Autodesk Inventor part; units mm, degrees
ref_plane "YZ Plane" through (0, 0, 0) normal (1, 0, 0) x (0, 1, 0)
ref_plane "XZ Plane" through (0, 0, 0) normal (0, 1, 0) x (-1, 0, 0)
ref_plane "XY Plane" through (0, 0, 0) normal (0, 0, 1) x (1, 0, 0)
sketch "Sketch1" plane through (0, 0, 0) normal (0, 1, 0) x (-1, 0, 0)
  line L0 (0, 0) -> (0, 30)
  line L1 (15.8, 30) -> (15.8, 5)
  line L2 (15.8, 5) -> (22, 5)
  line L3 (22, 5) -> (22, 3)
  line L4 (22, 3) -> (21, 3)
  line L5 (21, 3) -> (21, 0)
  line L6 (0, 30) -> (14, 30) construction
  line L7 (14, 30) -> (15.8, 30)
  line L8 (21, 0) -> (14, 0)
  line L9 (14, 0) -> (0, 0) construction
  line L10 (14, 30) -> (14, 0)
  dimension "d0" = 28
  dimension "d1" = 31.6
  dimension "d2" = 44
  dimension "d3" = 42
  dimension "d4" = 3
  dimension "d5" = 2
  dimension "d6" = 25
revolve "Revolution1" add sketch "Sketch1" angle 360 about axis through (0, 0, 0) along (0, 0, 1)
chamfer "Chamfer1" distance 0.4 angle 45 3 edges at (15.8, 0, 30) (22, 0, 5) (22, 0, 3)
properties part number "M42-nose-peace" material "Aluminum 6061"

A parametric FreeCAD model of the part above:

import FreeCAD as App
import Part
import Sketcher

V = App.Vector


def edges_at(feature, points):
    """Names of the edges that pass closest to the given points."""
    edges = feature.Shape.Edges
    near = lambda p: min(range(len(edges)), key=lambda i: edges[i].distToShape(Part.Vertex(*p))[0])
    return sorted({f"Edge{near(p) + 1}" for p in points})


def add_polygon(sketch, points):
    """Adds a closed chain of lines whose ends are joined by coincident constraints."""
    first, n = sketch.GeometryCount, len(points)
    for a, b in zip(points, points[1:] + points[:1]):
        sketch.addGeometry(Part.LineSegment(App.Vector(*a, 0), App.Vector(*b, 0)), False)
    for i in range(n):
        sketch.addConstraint(Sketcher.Constraint("Coincident", first + i, 2, first + (i + 1) % n, 1))

doc = App.newDocument("Part")
body = doc.addObject("PartDesign::Body", "Body")

# Sketch on XZ plane
sketch1 = body.newObject("Sketcher::SketchObject", "Sketch")
sketch1.AttachmentSupport = (doc.getObject("XZ_Plane"), [""])
sketch1.MapMode = "FlatFace"
add_polygon(sketch1, [(-15.8, 5), (-15.8, 30), (-14, 30), (-14, 0), (-21, 0), (-21, 3), (-22, 3), (-22, 5)])  # lines 0-7
sketch1.addConstraint([
    Sketcher.Constraint("Vertical", 0),
    Sketcher.Constraint("Horizontal", 1),
    Sketcher.Constraint("Vertical", 2),
    Sketcher.Constraint("Horizontal", 3),
    Sketcher.Constraint("Vertical", 4),
    Sketcher.Constraint("Horizontal", 5),
    Sketcher.Constraint("Vertical", 6),
    Sketcher.Constraint("Horizontal", 7),
    Sketcher.Constraint("PointOnObject", 2, 2, -1),
    Sketcher.Constraint("DistanceY", 0, 1, 0, 2, 25.0),
    Sketcher.Constraint("DistanceY", 4, 1, 4, 2, 3.0),
    Sketcher.Constraint("DistanceY", 6, 1, 6, 2, 2.0),
    Sketcher.Constraint("DistanceX", 3, 2, 3, 1, 7.0),
    Sketcher.Constraint("DistanceX", 5, 2, 5, 1, 1.0),
    Sketcher.Constraint("DistanceX", 1, 1, 1, 2, 1.8),
    Sketcher.Constraint("DistanceX", 1, 2, -1, 1, 14.0),
])
revolution = body.newObject("PartDesign::Revolution", "Revolution")
revolution.Profile = sketch1
revolution.ReferenceAxis = (sketch1, ["V_Axis"])
revolution.Angle = 360
doc.recompute()

chamfer = body.newObject("PartDesign::Chamfer", "Chamfer")
chamfer.Base = (revolution, edges_at(revolution, [(15.8, 0, 30), (22, 0, 5), (22, 0, 3)]))
chamfer.Size = 0.4

doc.recompute()
